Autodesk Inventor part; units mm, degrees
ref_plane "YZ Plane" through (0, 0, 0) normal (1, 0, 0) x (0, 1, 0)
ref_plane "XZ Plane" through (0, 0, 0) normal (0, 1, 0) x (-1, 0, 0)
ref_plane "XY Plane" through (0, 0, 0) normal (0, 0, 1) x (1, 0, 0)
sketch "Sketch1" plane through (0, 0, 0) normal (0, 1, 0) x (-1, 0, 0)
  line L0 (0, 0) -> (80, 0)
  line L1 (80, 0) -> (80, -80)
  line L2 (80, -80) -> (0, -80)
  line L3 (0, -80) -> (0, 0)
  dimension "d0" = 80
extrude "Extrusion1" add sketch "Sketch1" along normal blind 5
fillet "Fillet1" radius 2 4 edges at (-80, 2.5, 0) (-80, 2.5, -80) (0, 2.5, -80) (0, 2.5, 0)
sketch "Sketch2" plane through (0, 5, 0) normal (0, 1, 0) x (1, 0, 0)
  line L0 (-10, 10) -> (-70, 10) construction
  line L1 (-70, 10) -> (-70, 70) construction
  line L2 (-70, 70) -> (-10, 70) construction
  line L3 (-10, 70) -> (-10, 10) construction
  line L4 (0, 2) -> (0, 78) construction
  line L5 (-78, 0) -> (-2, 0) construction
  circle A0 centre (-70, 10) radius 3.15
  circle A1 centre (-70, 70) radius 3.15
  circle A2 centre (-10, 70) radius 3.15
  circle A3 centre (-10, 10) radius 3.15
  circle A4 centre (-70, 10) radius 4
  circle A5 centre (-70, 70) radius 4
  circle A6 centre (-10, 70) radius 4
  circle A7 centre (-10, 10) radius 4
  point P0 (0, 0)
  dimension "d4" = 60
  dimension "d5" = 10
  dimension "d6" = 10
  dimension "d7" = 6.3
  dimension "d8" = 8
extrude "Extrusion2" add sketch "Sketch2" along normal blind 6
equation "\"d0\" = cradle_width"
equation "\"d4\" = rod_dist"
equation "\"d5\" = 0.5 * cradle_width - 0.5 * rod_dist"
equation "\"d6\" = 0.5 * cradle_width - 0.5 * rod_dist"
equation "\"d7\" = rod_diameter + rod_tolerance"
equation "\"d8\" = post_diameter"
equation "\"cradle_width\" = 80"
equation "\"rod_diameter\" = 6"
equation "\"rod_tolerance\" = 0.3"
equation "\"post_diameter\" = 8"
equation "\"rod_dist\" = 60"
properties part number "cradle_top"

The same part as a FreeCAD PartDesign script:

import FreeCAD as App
import Part
import Sketcher

V = App.Vector


def edges_at(feature, points):
    """Names of the edges that pass closest to the given points."""
    edges = feature.Shape.Edges
    near = lambda p: min(range(len(edges)), key=lambda i: edges[i].distToShape(Part.Vertex(*p))[0])
    return sorted({f"Edge{near(p) + 1}" for p in points})

doc = App.newDocument("Part")
body = doc.addObject("PartDesign::Body", "Body")

# Sketch on XZ plane
sketch1 = doc.addObject("Sketcher::SketchObject", "Sketch")
body.addObject(sketch1)
sketch1.AttachmentSupport = (doc.XZ_Plane, [""])
sketch1.MapMode = "FlatFace"
sketch1.addGeometry([
    Part.LineSegment(V(-80, 0, 0), V(0, 0, 0)),
    Part.LineSegment(V(0, 0, 0), V(0, -80, 0)),
    Part.LineSegment(V(0, -80, 0), V(-80, -80, 0)),
    Part.LineSegment(V(-80, -80, 0), V(-80, 0, 0)),
], False)
sketch1.addConstraint([
    Sketcher.Constraint("Coincident", 0, 2, 1, 1),
    Sketcher.Constraint("Coincident", 1, 2, 2, 1),
    Sketcher.Constraint("Coincident", 2, 2, 3, 1),
    Sketcher.Constraint("Coincident", 3, 2, 0, 1),
    Sketcher.Constraint("Horizontal", 0),
    Sketcher.Constraint("Vertical", 1),
    Sketcher.Constraint("Horizontal", 2),
    Sketcher.Constraint("Vertical", 3),
    Sketcher.Constraint("Coincident", 0, 2, -1, 1),
    Sketcher.Constraint("Equal", 2, 1),
    Sketcher.Constraint("DistanceX", 0, 1, 0, 2, 80.0),
])
pad1 = doc.addObject("PartDesign::Pad", "Pad")
body.addObject(pad1)
pad1.Profile = sketch1
pad1.Length = 5
pad1.Reversed = True
doc.recompute()

fillet = doc.addObject("PartDesign::Fillet", "Fillet")
body.addObject(fillet)
fillet.Base = (pad1, edges_at(pad1, [
    (-80, 2.5, 0),
    (-80, 2.5, -80),
    (0, 2.5, -80),
    (0, 2.5, 0),
]))
fillet.Radius = 2

# Sketch on XZ plane
sketch2 = doc.addObject("Sketcher::SketchObject", "Sketch001")
body.addObject(sketch2)
sketch2.AttachmentSupport = (doc.XZ_Plane, [""])
sketch2.MapMode = "FlatFace"
sketch2.AttachmentOffset = App.Placement(V(0, 0, -5), App.Rotation())
sketch2.addGeometry([
    Part.Circle(V(-70, -10, 0), V(0, 0, 1), 4),  # 0
    Part.Circle(V(-70, -10, 0), V(0, 0, 1), 3.1),  # 1
    Part.Circle(V(-70, -70, 0), V(0, 0, 1), 4),  # 2
    Part.Circle(V(-70, -70, 0), V(0, 0, 1), 3.1),  # 3
    Part.Circle(V(-10, -70, 0), V(0, 0, 1), 4),  # 4
    Part.Circle(V(-10, -70, 0), V(0, 0, 1), 3.1),  # 5
    Part.Circle(V(-10, -10, 0), V(0, 0, 1), 4),  # 6
    Part.Circle(V(-10, -10, 0), V(0, 0, 1), 3.1),  # 7
], False)
sketch2.addConstraint([
    Sketcher.Constraint("Coincident", 1, 3, 0, 3),
    Sketcher.Constraint("Coincident", 3, 3, 2, 3),
    Sketcher.Constraint("Coincident", 5, 3, 4, 3),
    Sketcher.Constraint("Coincident", 7, 3, 6, 3),
    Sketcher.Constraint("Equal", 0, 2),
    Sketcher.Constraint("Equal", 1, 3),
    Sketcher.Constraint("Equal", 2, 4),
    Sketcher.Constraint("Equal", 3, 5),
    Sketcher.Constraint("Equal", 4, 6),
    Sketcher.Constraint("Equal", 5, 7),
    Sketcher.Constraint("Horizontal", 3, 3, 4, 3),
    Sketcher.Constraint("Horizontal", 1, 3, 6, 3),
    Sketcher.Constraint("Vertical", 1, 3, 2, 3),
    Sketcher.Constraint("Vertical", 5, 3, 6, 3),
    Sketcher.Constraint("Diameter", 0, 8.0),
    Sketcher.Constraint("Diameter", 1, 6.3),
    Sketcher.Constraint("DistanceY", 0, 3, -1, 1, 10.0),
    Sketcher.Constraint("DistanceX", 4, 3, -1, 1, 10.0),
    Sketcher.Constraint("DistanceY", 2, 3, 0, 3, 60.0),
    Sketcher.Constraint("DistanceX", 2, 3, 4, 3, 60.0),
])
pad2 = doc.addObject("PartDesign::Pad", "Pad001")
body.addObject(pad2)
pad2.Profile = sketch2
pad2.Length = 6
pad2.Reversed = True

doc.recompute()
